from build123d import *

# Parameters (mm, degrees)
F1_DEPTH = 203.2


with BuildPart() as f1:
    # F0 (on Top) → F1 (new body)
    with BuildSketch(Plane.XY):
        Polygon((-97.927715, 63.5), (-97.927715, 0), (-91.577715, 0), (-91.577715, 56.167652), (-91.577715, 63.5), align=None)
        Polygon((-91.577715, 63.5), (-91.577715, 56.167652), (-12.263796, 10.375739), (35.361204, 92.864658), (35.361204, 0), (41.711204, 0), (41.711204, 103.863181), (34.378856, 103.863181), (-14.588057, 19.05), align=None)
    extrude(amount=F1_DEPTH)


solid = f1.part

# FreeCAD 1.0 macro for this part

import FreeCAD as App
import Part
import Sketcher
Q = App.Units.Quantity

doc = App.newDocument("Part")
body = doc.addObject("PartDesign::Body", "Body")

# Sketch on XY plane
sketch1 = body.newObject("Sketcher::SketchObject", "Sketch")
sketch1.AttachmentSupport = (doc.getObject("XY_Plane"), [""])
sketch1.MapMode = "FlatFace"
sketch1.addGeometry(Part.LineSegment(App.Vector(-98, 64, 0), App.Vector(-98, 0, 0)), False)
sketch1.addGeometry(Part.LineSegment(App.Vector(-98, 0, 0), App.Vector(-92, 0, 0)), False)
sketch1.addGeometry(Part.LineSegment(App.Vector(-92, 0, 0), App.Vector(-92, 56, 0)), False)
sketch1.addGeometry(Part.LineSegment(App.Vector(-92, 56, 0), App.Vector(-12, 10, 0)), False)
sketch1.addGeometry(Part.LineSegment(App.Vector(-12, 10, 0), App.Vector(35, 93, 0)), False)
sketch1.addGeometry(Part.LineSegment(App.Vector(35, 93, 0), App.Vector(35, 0, 0)), False)
sketch1.addGeometry(Part.LineSegment(App.Vector(35, 0, 0), App.Vector(42, 0, 0)), False)
sketch1.addGeometry(Part.LineSegment(App.Vector(42, 0, 0), App.Vector(42, 104, 0)), False)
sketch1.addGeometry(Part.LineSegment(App.Vector(42, 104, 0), App.Vector(34, 104, 0)), False)
sketch1.addGeometry(Part.LineSegment(App.Vector(34, 104, 0), App.Vector(-15, 19, 0)), False)
sketch1.addGeometry(Part.LineSegment(App.Vector(-15, 19, 0), App.Vector(-92, 64, 0)), False)
sketch1.addGeometry(Part.LineSegment(App.Vector(-92, 64, 0), App.Vector(-98, 64, 0)), False)
sketch1.addConstraint(Sketcher.Constraint("Coincident", 0, 2, 1, 1))
sketch1.addConstraint(Sketcher.Constraint("Coincident", 1, 2, 2, 1))
sketch1.addConstraint(Sketcher.Constraint("Coincident", 2, 2, 3, 1))
sketch1.addConstraint(Sketcher.Constraint("Coincident", 3, 2, 4, 1))
sketch1.addConstraint(Sketcher.Constraint("Coincident", 4, 2, 5, 1))
sketch1.addConstraint(Sketcher.Constraint("Coincident", 5, 2, 6, 1))
sketch1.addConstraint(Sketcher.Constraint("Coincident", 6, 2, 7, 1))
sketch1.addConstraint(Sketcher.Constraint("Coincident", 7, 2, 8, 1))
sketch1.addConstraint(Sketcher.Constraint("Coincident", 8, 2, 9, 1))
sketch1.addConstraint(Sketcher.Constraint("Coincident", 9, 2, 10, 1))
sketch1.addConstraint(Sketcher.Constraint("Coincident", 10, 2, 11, 1))
sketch1.addConstraint(Sketcher.Constraint("Coincident", 11, 2, 0, 1))
sketch1.addConstraint(Sketcher.Constraint("Vertical", 0))
sketch1.addConstraint(Sketcher.Constraint("Horizontal", 1))
sketch1.addConstraint(Sketcher.Constraint("Vertical", 2))
sketch1.addConstraint(Sketcher.Constraint("Vertical", 5))
sketch1.addConstraint(Sketcher.Constraint("Horizontal", 6))
sketch1.addConstraint(Sketcher.Constraint("Vertical", 7))
sketch1.addConstraint(Sketcher.Constraint("Horizontal", 8))
sketch1.addConstraint(Sketcher.Constraint("Horizontal", 11))
sketch1.addConstraint(Sketcher.Constraint("PointOnObject", 0, 2, -1))
sketch1.addConstraint(Sketcher.Constraint("PointOnObject", 5, 2, -1))
sketch1.addConstraint(Sketcher.Constraint("Perpendicular", 3, 4))
sketch1.addConstraint(Sketcher.Constraint("Parallel", 4, 9))
sketch1.addConstraint(Sketcher.Constraint("Perpendicular", 9, 10))
sketch1.addConstraint(Sketcher.Constraint("Vertical", 2, 2, 10, 2))
sketch1.addConstraint(Sketcher.Constraint("Equal", 1, 6))
sketch1.addConstraint(Sketcher.Constraint("DistanceY", 0, 2, 0, 1, Q("2.5 in")))
sketch1.addConstraint(Sketcher.Constraint("Angle", 3, Q("-30 deg")))
sketch1.addConstraint(Sketcher.Constraint("Distance", 10, Q("3.5 in")))
sketch1.addConstraint(Sketcher.Constraint("DistanceX", 1, 1, 1, 2, Q("0.25 in")))
sketch1.addConstraint(Sketcher.Constraint("Distance", 4, Q("3.75 in")))
sketch1.addConstraint(Sketcher.Constraint("DistanceX", 8, 2, 8, 1, Q("7.332348 mm")))
sketch1.addConstraint(Sketcher.Constraint("DistanceY", 2, 1, 2, 2, Q("56.167652 mm")))
sketch1.addConstraint(Sketcher.Constraint("DistanceY", 5, 2, 5, 1, Q("92.864658 mm")))
sketch1.addConstraint(Sketcher.Constraint("DistanceX", 0, 2, -1, 1, Q("97.927715 mm")))
pad1 = body.newObject("PartDesign::Pad", "Pad")
pad1.Profile = sketch1
pad1.Length = Q("8 in")

doc.recompute()
